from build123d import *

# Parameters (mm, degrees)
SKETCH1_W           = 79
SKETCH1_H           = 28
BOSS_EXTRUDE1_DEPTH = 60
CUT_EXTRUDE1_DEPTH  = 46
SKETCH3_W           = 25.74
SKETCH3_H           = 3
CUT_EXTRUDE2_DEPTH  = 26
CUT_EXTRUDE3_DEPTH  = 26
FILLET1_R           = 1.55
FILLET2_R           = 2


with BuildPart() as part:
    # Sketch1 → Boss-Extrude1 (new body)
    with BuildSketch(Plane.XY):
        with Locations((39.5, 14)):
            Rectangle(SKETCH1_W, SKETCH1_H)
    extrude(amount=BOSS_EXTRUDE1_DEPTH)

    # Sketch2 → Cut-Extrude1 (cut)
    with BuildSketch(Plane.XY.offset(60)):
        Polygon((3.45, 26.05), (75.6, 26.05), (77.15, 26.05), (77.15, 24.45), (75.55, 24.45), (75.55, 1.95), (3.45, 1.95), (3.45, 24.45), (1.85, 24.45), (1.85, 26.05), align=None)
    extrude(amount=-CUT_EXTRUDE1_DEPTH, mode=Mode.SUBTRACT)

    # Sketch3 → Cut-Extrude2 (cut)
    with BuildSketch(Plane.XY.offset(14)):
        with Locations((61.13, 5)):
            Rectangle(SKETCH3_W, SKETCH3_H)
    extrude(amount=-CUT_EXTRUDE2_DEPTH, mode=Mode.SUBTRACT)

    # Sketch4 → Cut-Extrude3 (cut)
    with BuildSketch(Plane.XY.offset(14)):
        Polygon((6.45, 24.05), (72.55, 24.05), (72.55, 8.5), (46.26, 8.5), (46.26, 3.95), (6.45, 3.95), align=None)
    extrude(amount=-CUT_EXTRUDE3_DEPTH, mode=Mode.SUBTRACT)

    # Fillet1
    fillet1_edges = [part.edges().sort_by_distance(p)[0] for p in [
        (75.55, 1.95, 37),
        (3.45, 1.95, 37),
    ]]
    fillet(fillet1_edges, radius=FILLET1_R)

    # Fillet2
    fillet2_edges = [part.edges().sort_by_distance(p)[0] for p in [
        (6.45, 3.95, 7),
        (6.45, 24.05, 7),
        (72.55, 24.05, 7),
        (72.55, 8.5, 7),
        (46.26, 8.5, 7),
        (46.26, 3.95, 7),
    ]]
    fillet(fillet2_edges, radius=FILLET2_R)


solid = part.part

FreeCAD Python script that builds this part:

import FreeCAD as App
import Part
import Sketcher

V = App.Vector


def edges_at(feature, points):
    """Names of the edges that pass closest to the given points."""
    edges = feature.Shape.Edges
    near = lambda p: min(range(len(edges)), key=lambda i: edges[i].distToShape(Part.Vertex(*p))[0])
    return sorted({f"Edge{near(p) + 1}" for p in points})


def add_polygon(sketch, points):
    """Adds a closed chain of lines whose ends are joined by coincident constraints."""
    first, n = sketch.GeometryCount, len(points)
    for a, b in zip(points, points[1:] + points[:1]):
        sketch.addGeometry(Part.LineSegment(App.Vector(*a, 0), App.Vector(*b, 0)), False)
    for i in range(n):
        sketch.addConstraint(Sketcher.Constraint("Coincident", first + i, 2, first + (i + 1) % n, 1))

doc = App.newDocument("Part")
body = doc.addObject("PartDesign::Body", "Body")

sketch1 = body.newObject("Sketcher::SketchObject", "Sketch")
sketch1.AttachmentSupport = (doc.getObject("XY_Plane"), [""])
sketch1.MapMode = "FlatFace"
add_polygon(sketch1, [(0, 28), (0, 0), (79, 0), (79, 28)])
sketch1.addConstraint([
    Sketcher.Constraint("Vertical", 0),
    Sketcher.Constraint("Horizontal", 1),
    Sketcher.Constraint("Vertical", 2),
    Sketcher.Constraint("Horizontal", 3),
    Sketcher.Constraint("Coincident", 0, 2, -1, 1),
    Sketcher.Constraint("DistanceX", 1, 1, 1, 2, 79.0),
    Sketcher.Constraint("DistanceY", 0, 2, 0, 1, 28.0),
])
pad1 = body.newObject("PartDesign::Pad", "Pad")
pad1.Profile = sketch1
pad1.Length = 60

sketch2 = body.newObject("Sketcher::SketchObject", "Sketch001")
sketch2.AttachmentSupport = (doc.getObject("XY_Plane"), [""])
sketch2.MapMode = "FlatFace"
sketch2.AttachmentOffset = App.Placement(V(0, 0, 60), App.Rotation())
add_polygon(sketch2, [(77.2, 26.1), (1.9, 26.1), (1.9, 24.4), (3.5, 24.4), (3.5, 1.9), (75.5, 1.9), (75.5, 24.4), (77.2, 24.4)])
sketch2.addConstraint([
    Sketcher.Constraint("Horizontal", 0),
    Sketcher.Constraint("Vertical", 1),
    Sketcher.Constraint("Horizontal", 2),
    Sketcher.Constraint("Vertical", 3),
    Sketcher.Constraint("Horizontal", 4),
    Sketcher.Constraint("Vertical", 5),
    Sketcher.Constraint("Horizontal", 6),
    Sketcher.Constraint("Vertical", 7),
    Sketcher.Constraint("Horizontal", 2, 2, 5, 2),
    Sketcher.Constraint("Equal", 2, 6),
    Sketcher.Constraint("Equal", 6, 1),
    Sketcher.Constraint("DistanceX", 0, 2, 0, 1, 75.3),
    Sketcher.Constraint("DistanceX", 2, 1, 2, 2, 1.6),
    Sketcher.Constraint("DistanceY", 3, 2, 3, 1, 22.5),
    Sketcher.Constraint("DistanceX", -1, 1, 0, 2, 1.85),
    Sketcher.Constraint("DistanceY", -1, 1, 0, 2, 26.05),
])
pocket1 = body.newObject("PartDesign::Pocket", "Pocket")
pocket1.Profile = sketch2
pocket1.Length = 46

sketch3 = body.newObject("Sketcher::SketchObject", "Sketch002")
sketch3.AttachmentSupport = (doc.getObject("XY_Plane"), [""])
sketch3.MapMode = "FlatFace"
sketch3.AttachmentOffset = App.Placement(V(0, 0, 14), App.Rotation())
add_polygon(sketch3, [(48.3, 6.5), (48.3, 3.5), (74, 3.5), (74, 6.5)])
sketch3.addConstraint([
    Sketcher.Constraint("Vertical", 0),
    Sketcher.Constraint("Horizontal", 1),
    Sketcher.Constraint("Vertical", 2),
    Sketcher.Constraint("Horizontal", 3),
    Sketcher.Constraint("DistanceY", 0, 2, 0, 1, 3.0),
    Sketcher.Constraint("DistanceX", -1, 1, 1, 2, 74.0),
    Sketcher.Constraint("DistanceX", 1, 1, 1, 2, 25.74),
    Sketcher.Constraint("DistanceY", -1, 1, 0, 2, 3.5),
])
pocket2 = body.newObject("PartDesign::Pocket", "Pocket001")
pocket2.Profile = sketch3
pocket2.Length = 26

sketch4 = body.newObject("Sketcher::SketchObject", "Sketch003")
sketch4.AttachmentSupport = (doc.getObject("XY_Plane"), [""])
sketch4.MapMode = "FlatFace"
sketch4.AttachmentOffset = App.Placement(V(0, 0, 14), App.Rotation())
add_polygon(sketch4, [(72.5, 24.1), (6.5, 24.1), (6.5, 4), (46.3, 4), (46.3, 8.5), (72.5, 8.5)])
sketch4.addConstraint([
    Sketcher.Constraint("Horizontal", 0),
    Sketcher.Constraint("Vertical", 1),
    Sketcher.Constraint("Horizontal", 2),
    Sketcher.Constraint("Vertical", 3),
    Sketcher.Constraint("Horizontal", 4),
    Sketcher.Constraint("Vertical", 5),
    Sketcher.Constraint("DistanceX", 0, 2, 0, 1, 66.1),
    Sketcher.Constraint("DistanceY", 1, 2, 1, 1, 20.1),
    Sketcher.Constraint("DistanceX", 2, 1, 2, 2, 39.81),
    Sketcher.Constraint("DistanceY", 3, 1, 3, 2, 4.55),
    Sketcher.Constraint("DistanceY", -1, 1, 3, 2, 8.5),
    Sketcher.Constraint("DistanceX", -1, 1, 0, 2, 6.45),
])
pocket3 = body.newObject("PartDesign::Pocket", "Pocket002")
pocket3.Profile = sketch4
pocket3.Length = 26
doc.recompute()

fillet = body.newObject("PartDesign::Fillet", "Fillet")
fillet.Base = (pocket3, edges_at(pocket3, [(75.55, 1.95, 37), (3.45, 1.95, 37)]))
fillet.Radius = 1.55
doc.recompute()

fillet2 = body.newObject("PartDesign::Fillet", "Fillet001")
fillet2.Base = (fillet, edges_at(fillet, [
    (6.45, 3.95, 7),
    (6.45, 24.05, 7),
    (72.55, 24.05, 7),
    (72.55, 8.5, 7),
    (46.26, 8.5, 7),
    (46.26, 3.95, 7),
]))
fillet2.Radius = 2

doc.recompute()
